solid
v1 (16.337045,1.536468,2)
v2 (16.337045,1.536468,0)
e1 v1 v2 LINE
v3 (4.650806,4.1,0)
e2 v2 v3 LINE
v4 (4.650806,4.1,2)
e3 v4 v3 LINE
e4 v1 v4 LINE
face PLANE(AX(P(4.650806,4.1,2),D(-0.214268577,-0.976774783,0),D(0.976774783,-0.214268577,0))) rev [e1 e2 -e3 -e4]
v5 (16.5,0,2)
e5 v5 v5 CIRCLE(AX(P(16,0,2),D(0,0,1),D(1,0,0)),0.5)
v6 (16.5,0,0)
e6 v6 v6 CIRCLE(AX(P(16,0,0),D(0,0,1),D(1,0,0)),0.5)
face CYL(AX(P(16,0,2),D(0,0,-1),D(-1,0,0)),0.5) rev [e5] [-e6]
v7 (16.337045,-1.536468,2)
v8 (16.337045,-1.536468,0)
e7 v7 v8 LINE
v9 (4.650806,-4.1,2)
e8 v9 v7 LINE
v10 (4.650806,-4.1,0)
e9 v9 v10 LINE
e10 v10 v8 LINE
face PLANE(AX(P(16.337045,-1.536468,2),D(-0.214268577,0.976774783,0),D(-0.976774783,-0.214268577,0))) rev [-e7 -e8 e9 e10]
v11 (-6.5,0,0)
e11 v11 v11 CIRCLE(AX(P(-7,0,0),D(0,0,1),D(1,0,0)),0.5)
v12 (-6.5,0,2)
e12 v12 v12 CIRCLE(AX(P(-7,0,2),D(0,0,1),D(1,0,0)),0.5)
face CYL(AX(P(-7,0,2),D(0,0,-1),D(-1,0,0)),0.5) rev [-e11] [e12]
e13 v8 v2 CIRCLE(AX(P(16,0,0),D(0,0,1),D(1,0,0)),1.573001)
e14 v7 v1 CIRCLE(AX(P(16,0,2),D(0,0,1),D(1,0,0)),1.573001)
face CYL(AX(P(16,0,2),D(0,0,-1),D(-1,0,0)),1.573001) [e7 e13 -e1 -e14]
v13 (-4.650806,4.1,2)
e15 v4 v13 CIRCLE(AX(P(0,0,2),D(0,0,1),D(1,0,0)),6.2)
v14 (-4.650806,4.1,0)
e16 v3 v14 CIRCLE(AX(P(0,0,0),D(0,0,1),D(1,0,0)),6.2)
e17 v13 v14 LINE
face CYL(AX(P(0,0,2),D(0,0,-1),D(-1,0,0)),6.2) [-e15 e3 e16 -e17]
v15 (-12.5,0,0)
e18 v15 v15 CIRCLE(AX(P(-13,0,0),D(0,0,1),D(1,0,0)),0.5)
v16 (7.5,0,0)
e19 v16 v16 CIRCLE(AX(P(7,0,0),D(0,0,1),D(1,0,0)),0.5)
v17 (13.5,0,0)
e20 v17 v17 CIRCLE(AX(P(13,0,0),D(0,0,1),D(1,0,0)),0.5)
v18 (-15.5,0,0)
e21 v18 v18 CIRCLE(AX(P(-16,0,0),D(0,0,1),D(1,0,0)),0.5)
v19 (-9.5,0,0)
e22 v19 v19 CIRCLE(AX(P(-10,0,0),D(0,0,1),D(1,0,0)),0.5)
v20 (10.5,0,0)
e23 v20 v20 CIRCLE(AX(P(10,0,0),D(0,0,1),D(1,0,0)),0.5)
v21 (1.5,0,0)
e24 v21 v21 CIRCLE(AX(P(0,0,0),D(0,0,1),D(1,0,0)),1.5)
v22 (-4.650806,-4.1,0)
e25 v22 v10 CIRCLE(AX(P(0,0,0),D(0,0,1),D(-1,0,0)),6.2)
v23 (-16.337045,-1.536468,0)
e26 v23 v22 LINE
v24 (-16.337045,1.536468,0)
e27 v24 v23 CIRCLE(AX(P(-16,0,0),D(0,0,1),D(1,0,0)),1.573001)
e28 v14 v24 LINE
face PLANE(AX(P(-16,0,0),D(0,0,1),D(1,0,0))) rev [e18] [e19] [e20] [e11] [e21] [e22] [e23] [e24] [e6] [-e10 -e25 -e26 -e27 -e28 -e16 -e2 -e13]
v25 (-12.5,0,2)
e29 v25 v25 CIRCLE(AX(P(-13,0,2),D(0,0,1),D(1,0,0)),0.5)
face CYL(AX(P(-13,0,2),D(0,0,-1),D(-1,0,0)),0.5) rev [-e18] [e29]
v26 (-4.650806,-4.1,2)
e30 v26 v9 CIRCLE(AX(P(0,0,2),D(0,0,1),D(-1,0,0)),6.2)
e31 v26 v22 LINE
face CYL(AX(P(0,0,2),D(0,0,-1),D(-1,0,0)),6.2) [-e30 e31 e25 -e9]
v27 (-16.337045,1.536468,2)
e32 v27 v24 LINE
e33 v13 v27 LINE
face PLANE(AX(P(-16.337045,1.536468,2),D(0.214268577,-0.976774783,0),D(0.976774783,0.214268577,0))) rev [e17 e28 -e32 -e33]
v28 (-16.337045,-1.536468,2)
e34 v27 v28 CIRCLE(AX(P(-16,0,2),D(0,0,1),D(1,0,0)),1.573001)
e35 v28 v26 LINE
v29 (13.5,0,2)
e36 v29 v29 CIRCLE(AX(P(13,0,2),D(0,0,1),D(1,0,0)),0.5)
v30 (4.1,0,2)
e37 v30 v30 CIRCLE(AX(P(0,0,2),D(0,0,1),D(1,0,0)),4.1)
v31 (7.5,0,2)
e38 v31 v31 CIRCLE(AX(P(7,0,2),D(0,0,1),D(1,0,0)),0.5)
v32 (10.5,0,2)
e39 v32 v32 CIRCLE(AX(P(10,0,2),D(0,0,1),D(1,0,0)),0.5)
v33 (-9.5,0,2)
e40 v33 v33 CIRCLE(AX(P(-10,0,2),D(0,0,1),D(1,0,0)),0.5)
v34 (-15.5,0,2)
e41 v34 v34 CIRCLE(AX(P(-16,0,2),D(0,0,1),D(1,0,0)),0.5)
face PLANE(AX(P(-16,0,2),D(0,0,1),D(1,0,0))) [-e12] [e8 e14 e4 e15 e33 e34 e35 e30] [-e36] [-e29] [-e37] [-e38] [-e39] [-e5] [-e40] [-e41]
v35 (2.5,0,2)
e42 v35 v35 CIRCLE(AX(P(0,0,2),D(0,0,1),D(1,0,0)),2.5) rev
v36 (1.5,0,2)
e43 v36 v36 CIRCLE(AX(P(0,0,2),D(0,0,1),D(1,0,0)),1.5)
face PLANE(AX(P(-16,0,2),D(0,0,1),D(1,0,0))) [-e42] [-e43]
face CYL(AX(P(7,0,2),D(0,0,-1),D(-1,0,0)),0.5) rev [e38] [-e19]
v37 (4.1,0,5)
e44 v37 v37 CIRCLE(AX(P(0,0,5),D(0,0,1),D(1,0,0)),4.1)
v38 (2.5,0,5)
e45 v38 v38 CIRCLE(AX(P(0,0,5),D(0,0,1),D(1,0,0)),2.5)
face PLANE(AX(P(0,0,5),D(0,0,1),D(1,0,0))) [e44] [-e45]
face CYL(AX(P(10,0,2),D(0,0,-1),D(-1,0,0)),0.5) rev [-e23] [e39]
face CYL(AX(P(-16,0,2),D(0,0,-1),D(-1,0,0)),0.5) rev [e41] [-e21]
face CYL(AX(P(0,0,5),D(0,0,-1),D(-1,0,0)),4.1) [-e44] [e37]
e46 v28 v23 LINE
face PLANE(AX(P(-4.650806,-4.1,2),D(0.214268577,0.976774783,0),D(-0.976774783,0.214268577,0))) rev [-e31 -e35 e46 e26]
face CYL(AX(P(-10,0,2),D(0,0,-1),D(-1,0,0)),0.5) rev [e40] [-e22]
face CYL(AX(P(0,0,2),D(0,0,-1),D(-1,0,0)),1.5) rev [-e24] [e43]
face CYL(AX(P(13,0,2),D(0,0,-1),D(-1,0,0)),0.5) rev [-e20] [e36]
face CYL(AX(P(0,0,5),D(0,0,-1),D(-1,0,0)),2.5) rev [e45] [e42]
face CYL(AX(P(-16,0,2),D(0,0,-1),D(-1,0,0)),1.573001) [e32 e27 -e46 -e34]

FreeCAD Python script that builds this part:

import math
import FreeCAD as App
import Part
import Sketcher
Q = App.Units.Quantity

doc = App.newDocument("Part")
body = doc.addObject("PartDesign::Body", "Body")

# Sketch on XY plane
sketch1 = body.newObject("Sketcher::SketchObject", "Sketch")
sketch1.AttachmentSupport = (doc.getObject("XY_Plane"), [""])
sketch1.MapMode = "FlatFace"
sketch1.addGeometry(Part.LineSegment(App.Vector(-4.7, 4.1, 0), App.Vector(-16.3, 1.5, 0)), False)
sketch1.addGeometry(Part.ArcOfCircle(Part.Circle(App.Vector(-16, 0, 0), App.Vector(0, 0, 1), 1.6), math.radians(102), math.radians(258)), False)
sketch1.addGeometry(Part.LineSegment(App.Vector(-16.3, -1.5, 0), App.Vector(-4.7, -4.1, 0)), False)
sketch1.addGeometry(Part.ArcOfCircle(Part.Circle(App.Vector(0, 0, 0), App.Vector(0, 0, 1), 6.2), math.radians(-139), math.radians(-41)), False)
sketch1.addGeometry(Part.LineSegment(App.Vector(4.7, -4.1, 0), App.Vector(16.3, -1.5, 0)), False)
sketch1.addGeometry(Part.ArcOfCircle(Part.Circle(App.Vector(16, 0, 0), App.Vector(0, 0, 1), 1.6), math.radians(-78), math.radians(78)), False)
sketch1.addGeometry(Part.LineSegment(App.Vector(16.3, 1.5, 0), App.Vector(4.7, 4.1, 0)), False)
sketch1.addGeometry(Part.ArcOfCircle(Part.Circle(App.Vector(0, 0, 0), App.Vector(0, 0, 1), 6.2), math.radians(41), math.radians(139)), False)
sketch1.addGeometry(Part.Circle(App.Vector(16, 0, 0), App.Vector(0, 0, 1), 0.5), False)
sketch1.addGeometry(Part.Circle(App.Vector(13, 0, 0), App.Vector(0, 0, 1), 0.5), False)
sketch1.addGeometry(Part.Circle(App.Vector(10, 0, 0), App.Vector(0, 0, 1), 0.5), False)
sketch1.addGeometry(Part.Circle(App.Vector(7, 0, 0), App.Vector(0, 0, 1), 0.5), False)
sketch1.addGeometry(Part.Circle(App.Vector(0, 0, 0), App.Vector(0, 0, 1), 1.5), False)
sketch1.addGeometry(Part.Circle(App.Vector(-7, 0, 0), App.Vector(0, 0, 1), 0.5), False)
sketch1.addGeometry(Part.Circle(App.Vector(-10, 0, 0), App.Vector(0, 0, 1), 0.5), False)
sketch1.addGeometry(Part.Circle(App.Vector(-13, 0, 0), App.Vector(0, 0, 1), 0.5), False)
sketch1.addGeometry(Part.Circle(App.Vector(-16, 0, 0), App.Vector(0, 0, 1), 0.5), False)
sketch1.addConstraint(Sketcher.Constraint("Tangent", 0, 2, 1, 1))
sketch1.addConstraint(Sketcher.Constraint("Tangent", 1, 2, 2, 1))
sketch1.addConstraint(Sketcher.Constraint("Coincident", 2, 2, 3, 1))
sketch1.addConstraint(Sketcher.Constraint("Coincident", 3, 2, 4, 1))
sketch1.addConstraint(Sketcher.Constraint("Tangent", 4, 2, 5, 1))
sketch1.addConstraint(Sketcher.Constraint("Tangent", 5, 2, 6, 1))
sketch1.addConstraint(Sketcher.Constraint("Coincident", 6, 2, 7, 1))
sketch1.addConstraint(Sketcher.Constraint("Coincident", 7, 2, 0, 1))
sketch1.addConstraint(Sketcher.Constraint("Coincident", 3, 3, -1, 1))
sketch1.addConstraint(Sketcher.Constraint("Coincident", 7, 3, -1, 1))
sketch1.addConstraint(Sketcher.Constraint("Coincident", 12, 3, -1, 1))
sketch1.addConstraint(Sketcher.Constraint("Coincident", 8, 3, 5, 3))
sketch1.addConstraint(Sketcher.Constraint("Coincident", 16, 3, 1, 3))
sketch1.addConstraint(Sketcher.Constraint("Equal", 1, 5))
sketch1.addConstraint(Sketcher.Constraint("Equal", 3, 7))
sketch1.addConstraint(Sketcher.Constraint("Equal", 8, 9))
sketch1.addConstraint(Sketcher.Constraint("Equal", 9, 10))
sketch1.addConstraint(Sketcher.Constraint("Equal", 10, 11))
sketch1.addConstraint(Sketcher.Constraint("Equal", 11, 13))
sketch1.addConstraint(Sketcher.Constraint("Equal", 13, 14))
sketch1.addConstraint(Sketcher.Constraint("Equal", 14, 15))
sketch1.addConstraint(Sketcher.Constraint("Equal", 15, 16))
sketch1.addConstraint(Sketcher.Constraint("Symmetric", 1, 3, 5, 3, -1, 1))
sketch1.addConstraint(Sketcher.Constraint("Symmetric", 11, 3, 13, 3, -1, 1))
sketch1.addConstraint(Sketcher.Constraint("Symmetric", 10, 3, 14, 3, -1, 1))
sketch1.addConstraint(Sketcher.Constraint("Symmetric", 9, 3, 15, 3, -1, 1))
sketch1.addConstraint(Sketcher.Constraint("Symmetric", 1, 2, 4, 2, -2))
sketch1.addConstraint(Sketcher.Constraint("PointOnObject", 9, 3, -1))
sketch1.addConstraint(Sketcher.Constraint("PointOnObject", 10, 3, -1))
sketch1.addConstraint(Sketcher.Constraint("PointOnObject", 11, 3, -1))
sketch1.addConstraint(Sketcher.Constraint("Parallel", 0, 4))
sketch1.addConstraint(Sketcher.Constraint("Parallel", 2, 6))
sketch1.addConstraint(Sketcher.Constraint("Diameter", 8, Q("1 mm")))
sketch1.addConstraint(Sketcher.Constraint("Diameter", 12, Q("3 mm")))
sketch1.addConstraint(Sketcher.Constraint("Radius", 3, Q("6.2 mm")))
sketch1.addConstraint(Sketcher.Constraint("DistanceX", 1, 3, -1, 1, Q("16 mm")))
sketch1.addConstraint(Sketcher.Constraint("DistanceX", -1, 1, 9, 3, Q("13 mm")))
sketch1.addConstraint(Sketcher.Constraint("DistanceX", -1, 1, 10, 3, Q("10 mm")))
sketch1.addConstraint(Sketcher.Constraint("DistanceX", -1, 1, 11, 3, Q("7 mm")))
sketch1.addConstraint(Sketcher.Constraint("Radius", 1, Q("1.573001 mm")))
sketch1.addConstraint(Sketcher.Constraint("DistanceY", 2, 2, -1, 1, Q("4.1 mm")))
pad1 = body.newObject("PartDesign::Pad", "Pad")
pad1.Profile = sketch1
pad1.Length = 2

# Sketch on XY plane
sketch2 = body.newObject("Sketcher::SketchObject", "Sketch001")
sketch2.AttachmentSupport = (doc.getObject("XY_Plane"), [""])
sketch2.MapMode = "FlatFace"
sketch2.AttachmentOffset = App.Placement(App.Vector(0, 0, 2), App.Rotation())
sketch2.addGeometry(Part.Circle(App.Vector(0, 0, 0), App.Vector(0, 0, 1), 4.1), False)
sketch2.addGeometry(Part.Circle(App.Vector(0, 0, 0), App.Vector(0, 0, 1), 2.5), False)
sketch2.addConstraint(Sketcher.Constraint("Coincident", 0, 3, -1, 1))
sketch2.addConstraint(Sketcher.Constraint("Coincident", 1, 3, -1, 1))
sketch2.addConstraint(Sketcher.Constraint("Diameter", 1, Q("5 mm")))
sketch2.addConstraint(Sketcher.Constraint("Diameter", 0, Q("8.2 mm")))
pad2 = body.newObject("PartDesign::Pad", "Pad001")
pad2.Profile = sketch2
pad2.Length = 3

doc.recompute()
